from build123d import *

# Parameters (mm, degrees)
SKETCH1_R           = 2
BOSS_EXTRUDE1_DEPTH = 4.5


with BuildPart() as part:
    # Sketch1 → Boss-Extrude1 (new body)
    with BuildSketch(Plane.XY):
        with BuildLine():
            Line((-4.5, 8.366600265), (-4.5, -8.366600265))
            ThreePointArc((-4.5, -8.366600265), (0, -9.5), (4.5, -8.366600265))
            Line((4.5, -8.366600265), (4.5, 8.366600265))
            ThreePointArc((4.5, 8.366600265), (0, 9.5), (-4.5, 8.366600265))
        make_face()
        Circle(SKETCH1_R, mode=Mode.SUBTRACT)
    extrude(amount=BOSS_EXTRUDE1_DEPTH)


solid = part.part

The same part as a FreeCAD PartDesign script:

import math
import FreeCAD as App
import Part
import Sketcher

V = App.Vector
Q = App.Units.Quantity

doc = App.newDocument("Part")
body = doc.addObject("PartDesign::Body", "Body")

sketch1 = body.newObject("Sketcher::SketchObject", "Sketch")
sketch1.AttachmentSupport = (doc.getObject("XY_Plane"), [""])
sketch1.MapMode = "FlatFace"
sketch1.addGeometry(Part.LineSegment(V(-4.5, 8.3666, 0), V(-4.5, -8.3666, 0)), False)
sketch1.addGeometry(Part.ArcOfCircle(Part.Circle(V(0, 0, 0), V(0, 0, 1), 9.5), math.radians(-118.273714), math.radians(-61.726286)), False)
sketch1.addGeometry(Part.LineSegment(V(4.5, -8.3666, 0), V(4.5, 8.3666, 0)), False)
sketch1.addGeometry(Part.ArcOfCircle(Part.Circle(V(0, 0, 0), V(0, 0, 1), 9.5), math.radians(61.726286), math.radians(118.273714)), False)
sketch1.addGeometry(Part.Circle(V(0, 0, 0), V(0, 0, 1), 2), False)
sketch1.addConstraint(Sketcher.Constraint("Coincident", 0, 2, 1, 1))
sketch1.addConstraint(Sketcher.Constraint("Coincident", 1, 2, 2, 1))
sketch1.addConstraint(Sketcher.Constraint("Coincident", 2, 2, 3, 1))
sketch1.addConstraint(Sketcher.Constraint("Coincident", 3, 2, 0, 1))
sketch1.addConstraint(Sketcher.Constraint("Vertical", 0))
sketch1.addConstraint(Sketcher.Constraint("Vertical", 2))
sketch1.addConstraint(Sketcher.Constraint("Coincident", 1, 3, -1, 1))
sketch1.addConstraint(Sketcher.Constraint("Coincident", 3, 3, -1, 1))
sketch1.addConstraint(Sketcher.Constraint("Coincident", 4, 3, -1, 1))
sketch1.addConstraint(Sketcher.Constraint("Equal", 1, 3))
sketch1.addConstraint(Sketcher.Constraint("Horizontal", 0, 2, 1, 2))
sketch1.addConstraint(Sketcher.Constraint("Diameter", 4, Q("4 mm")))
sketch1.addConstraint(Sketcher.Constraint("Radius", 1, Q("9.5 mm")))
sketch1.addConstraint(Sketcher.Constraint("DistanceX", 0, 2, 1, 2, Q("9 mm")))
pad1 = body.newObject("PartDesign::Pad", "Pad")
pad1.Profile = sketch1
pad1.Length = 4.5

doc.recompute()
